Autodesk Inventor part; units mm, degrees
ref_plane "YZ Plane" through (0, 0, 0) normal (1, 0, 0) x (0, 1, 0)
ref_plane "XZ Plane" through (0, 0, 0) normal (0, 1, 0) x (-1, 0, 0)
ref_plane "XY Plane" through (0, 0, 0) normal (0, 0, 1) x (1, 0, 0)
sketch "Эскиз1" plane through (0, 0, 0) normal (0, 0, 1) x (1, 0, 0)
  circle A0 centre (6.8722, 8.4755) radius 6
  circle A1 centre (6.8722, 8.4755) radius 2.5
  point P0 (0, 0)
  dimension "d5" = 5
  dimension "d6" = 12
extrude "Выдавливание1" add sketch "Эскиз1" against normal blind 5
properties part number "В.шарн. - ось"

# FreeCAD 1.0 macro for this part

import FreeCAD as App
import Part
import Sketcher
Q = App.Units.Quantity

doc = App.newDocument("Part")
body = doc.addObject("PartDesign::Body", "Body")

# Sketch on XY plane
sketch1 = body.newObject("Sketcher::SketchObject", "Sketch")
sketch1.AttachmentSupport = (doc.getObject("XY_Plane"), [""])
sketch1.MapMode = "FlatFace"
sketch1.addGeometry([
    Part.Circle(App.Vector(6.8722, 8.4755, 0), App.Vector(0, 0, 1), 6),
    Part.Circle(App.Vector(6.8722, 8.4755, 0), App.Vector(0, 0, 1), 2.5),
], False)
sketch1.addConstraint([
    Sketcher.Constraint("Coincident", 1, 3, 0, 3),
    Sketcher.Constraint("Diameter", 0, Q("12 mm")),
    Sketcher.Constraint("Diameter", 1, Q("5 mm")),
    Sketcher.Constraint("DistanceX", -1, 1, 0, 3, Q("6.8722 mm")),
    Sketcher.Constraint("DistanceY", -1, 1, 0, 3, Q("8.4755 mm")),
])
pad1 = body.newObject("PartDesign::Pad", "Pad")
pad1.Profile = sketch1
pad1.Length = 5
pad1.Reversed = True

doc.recompute()
